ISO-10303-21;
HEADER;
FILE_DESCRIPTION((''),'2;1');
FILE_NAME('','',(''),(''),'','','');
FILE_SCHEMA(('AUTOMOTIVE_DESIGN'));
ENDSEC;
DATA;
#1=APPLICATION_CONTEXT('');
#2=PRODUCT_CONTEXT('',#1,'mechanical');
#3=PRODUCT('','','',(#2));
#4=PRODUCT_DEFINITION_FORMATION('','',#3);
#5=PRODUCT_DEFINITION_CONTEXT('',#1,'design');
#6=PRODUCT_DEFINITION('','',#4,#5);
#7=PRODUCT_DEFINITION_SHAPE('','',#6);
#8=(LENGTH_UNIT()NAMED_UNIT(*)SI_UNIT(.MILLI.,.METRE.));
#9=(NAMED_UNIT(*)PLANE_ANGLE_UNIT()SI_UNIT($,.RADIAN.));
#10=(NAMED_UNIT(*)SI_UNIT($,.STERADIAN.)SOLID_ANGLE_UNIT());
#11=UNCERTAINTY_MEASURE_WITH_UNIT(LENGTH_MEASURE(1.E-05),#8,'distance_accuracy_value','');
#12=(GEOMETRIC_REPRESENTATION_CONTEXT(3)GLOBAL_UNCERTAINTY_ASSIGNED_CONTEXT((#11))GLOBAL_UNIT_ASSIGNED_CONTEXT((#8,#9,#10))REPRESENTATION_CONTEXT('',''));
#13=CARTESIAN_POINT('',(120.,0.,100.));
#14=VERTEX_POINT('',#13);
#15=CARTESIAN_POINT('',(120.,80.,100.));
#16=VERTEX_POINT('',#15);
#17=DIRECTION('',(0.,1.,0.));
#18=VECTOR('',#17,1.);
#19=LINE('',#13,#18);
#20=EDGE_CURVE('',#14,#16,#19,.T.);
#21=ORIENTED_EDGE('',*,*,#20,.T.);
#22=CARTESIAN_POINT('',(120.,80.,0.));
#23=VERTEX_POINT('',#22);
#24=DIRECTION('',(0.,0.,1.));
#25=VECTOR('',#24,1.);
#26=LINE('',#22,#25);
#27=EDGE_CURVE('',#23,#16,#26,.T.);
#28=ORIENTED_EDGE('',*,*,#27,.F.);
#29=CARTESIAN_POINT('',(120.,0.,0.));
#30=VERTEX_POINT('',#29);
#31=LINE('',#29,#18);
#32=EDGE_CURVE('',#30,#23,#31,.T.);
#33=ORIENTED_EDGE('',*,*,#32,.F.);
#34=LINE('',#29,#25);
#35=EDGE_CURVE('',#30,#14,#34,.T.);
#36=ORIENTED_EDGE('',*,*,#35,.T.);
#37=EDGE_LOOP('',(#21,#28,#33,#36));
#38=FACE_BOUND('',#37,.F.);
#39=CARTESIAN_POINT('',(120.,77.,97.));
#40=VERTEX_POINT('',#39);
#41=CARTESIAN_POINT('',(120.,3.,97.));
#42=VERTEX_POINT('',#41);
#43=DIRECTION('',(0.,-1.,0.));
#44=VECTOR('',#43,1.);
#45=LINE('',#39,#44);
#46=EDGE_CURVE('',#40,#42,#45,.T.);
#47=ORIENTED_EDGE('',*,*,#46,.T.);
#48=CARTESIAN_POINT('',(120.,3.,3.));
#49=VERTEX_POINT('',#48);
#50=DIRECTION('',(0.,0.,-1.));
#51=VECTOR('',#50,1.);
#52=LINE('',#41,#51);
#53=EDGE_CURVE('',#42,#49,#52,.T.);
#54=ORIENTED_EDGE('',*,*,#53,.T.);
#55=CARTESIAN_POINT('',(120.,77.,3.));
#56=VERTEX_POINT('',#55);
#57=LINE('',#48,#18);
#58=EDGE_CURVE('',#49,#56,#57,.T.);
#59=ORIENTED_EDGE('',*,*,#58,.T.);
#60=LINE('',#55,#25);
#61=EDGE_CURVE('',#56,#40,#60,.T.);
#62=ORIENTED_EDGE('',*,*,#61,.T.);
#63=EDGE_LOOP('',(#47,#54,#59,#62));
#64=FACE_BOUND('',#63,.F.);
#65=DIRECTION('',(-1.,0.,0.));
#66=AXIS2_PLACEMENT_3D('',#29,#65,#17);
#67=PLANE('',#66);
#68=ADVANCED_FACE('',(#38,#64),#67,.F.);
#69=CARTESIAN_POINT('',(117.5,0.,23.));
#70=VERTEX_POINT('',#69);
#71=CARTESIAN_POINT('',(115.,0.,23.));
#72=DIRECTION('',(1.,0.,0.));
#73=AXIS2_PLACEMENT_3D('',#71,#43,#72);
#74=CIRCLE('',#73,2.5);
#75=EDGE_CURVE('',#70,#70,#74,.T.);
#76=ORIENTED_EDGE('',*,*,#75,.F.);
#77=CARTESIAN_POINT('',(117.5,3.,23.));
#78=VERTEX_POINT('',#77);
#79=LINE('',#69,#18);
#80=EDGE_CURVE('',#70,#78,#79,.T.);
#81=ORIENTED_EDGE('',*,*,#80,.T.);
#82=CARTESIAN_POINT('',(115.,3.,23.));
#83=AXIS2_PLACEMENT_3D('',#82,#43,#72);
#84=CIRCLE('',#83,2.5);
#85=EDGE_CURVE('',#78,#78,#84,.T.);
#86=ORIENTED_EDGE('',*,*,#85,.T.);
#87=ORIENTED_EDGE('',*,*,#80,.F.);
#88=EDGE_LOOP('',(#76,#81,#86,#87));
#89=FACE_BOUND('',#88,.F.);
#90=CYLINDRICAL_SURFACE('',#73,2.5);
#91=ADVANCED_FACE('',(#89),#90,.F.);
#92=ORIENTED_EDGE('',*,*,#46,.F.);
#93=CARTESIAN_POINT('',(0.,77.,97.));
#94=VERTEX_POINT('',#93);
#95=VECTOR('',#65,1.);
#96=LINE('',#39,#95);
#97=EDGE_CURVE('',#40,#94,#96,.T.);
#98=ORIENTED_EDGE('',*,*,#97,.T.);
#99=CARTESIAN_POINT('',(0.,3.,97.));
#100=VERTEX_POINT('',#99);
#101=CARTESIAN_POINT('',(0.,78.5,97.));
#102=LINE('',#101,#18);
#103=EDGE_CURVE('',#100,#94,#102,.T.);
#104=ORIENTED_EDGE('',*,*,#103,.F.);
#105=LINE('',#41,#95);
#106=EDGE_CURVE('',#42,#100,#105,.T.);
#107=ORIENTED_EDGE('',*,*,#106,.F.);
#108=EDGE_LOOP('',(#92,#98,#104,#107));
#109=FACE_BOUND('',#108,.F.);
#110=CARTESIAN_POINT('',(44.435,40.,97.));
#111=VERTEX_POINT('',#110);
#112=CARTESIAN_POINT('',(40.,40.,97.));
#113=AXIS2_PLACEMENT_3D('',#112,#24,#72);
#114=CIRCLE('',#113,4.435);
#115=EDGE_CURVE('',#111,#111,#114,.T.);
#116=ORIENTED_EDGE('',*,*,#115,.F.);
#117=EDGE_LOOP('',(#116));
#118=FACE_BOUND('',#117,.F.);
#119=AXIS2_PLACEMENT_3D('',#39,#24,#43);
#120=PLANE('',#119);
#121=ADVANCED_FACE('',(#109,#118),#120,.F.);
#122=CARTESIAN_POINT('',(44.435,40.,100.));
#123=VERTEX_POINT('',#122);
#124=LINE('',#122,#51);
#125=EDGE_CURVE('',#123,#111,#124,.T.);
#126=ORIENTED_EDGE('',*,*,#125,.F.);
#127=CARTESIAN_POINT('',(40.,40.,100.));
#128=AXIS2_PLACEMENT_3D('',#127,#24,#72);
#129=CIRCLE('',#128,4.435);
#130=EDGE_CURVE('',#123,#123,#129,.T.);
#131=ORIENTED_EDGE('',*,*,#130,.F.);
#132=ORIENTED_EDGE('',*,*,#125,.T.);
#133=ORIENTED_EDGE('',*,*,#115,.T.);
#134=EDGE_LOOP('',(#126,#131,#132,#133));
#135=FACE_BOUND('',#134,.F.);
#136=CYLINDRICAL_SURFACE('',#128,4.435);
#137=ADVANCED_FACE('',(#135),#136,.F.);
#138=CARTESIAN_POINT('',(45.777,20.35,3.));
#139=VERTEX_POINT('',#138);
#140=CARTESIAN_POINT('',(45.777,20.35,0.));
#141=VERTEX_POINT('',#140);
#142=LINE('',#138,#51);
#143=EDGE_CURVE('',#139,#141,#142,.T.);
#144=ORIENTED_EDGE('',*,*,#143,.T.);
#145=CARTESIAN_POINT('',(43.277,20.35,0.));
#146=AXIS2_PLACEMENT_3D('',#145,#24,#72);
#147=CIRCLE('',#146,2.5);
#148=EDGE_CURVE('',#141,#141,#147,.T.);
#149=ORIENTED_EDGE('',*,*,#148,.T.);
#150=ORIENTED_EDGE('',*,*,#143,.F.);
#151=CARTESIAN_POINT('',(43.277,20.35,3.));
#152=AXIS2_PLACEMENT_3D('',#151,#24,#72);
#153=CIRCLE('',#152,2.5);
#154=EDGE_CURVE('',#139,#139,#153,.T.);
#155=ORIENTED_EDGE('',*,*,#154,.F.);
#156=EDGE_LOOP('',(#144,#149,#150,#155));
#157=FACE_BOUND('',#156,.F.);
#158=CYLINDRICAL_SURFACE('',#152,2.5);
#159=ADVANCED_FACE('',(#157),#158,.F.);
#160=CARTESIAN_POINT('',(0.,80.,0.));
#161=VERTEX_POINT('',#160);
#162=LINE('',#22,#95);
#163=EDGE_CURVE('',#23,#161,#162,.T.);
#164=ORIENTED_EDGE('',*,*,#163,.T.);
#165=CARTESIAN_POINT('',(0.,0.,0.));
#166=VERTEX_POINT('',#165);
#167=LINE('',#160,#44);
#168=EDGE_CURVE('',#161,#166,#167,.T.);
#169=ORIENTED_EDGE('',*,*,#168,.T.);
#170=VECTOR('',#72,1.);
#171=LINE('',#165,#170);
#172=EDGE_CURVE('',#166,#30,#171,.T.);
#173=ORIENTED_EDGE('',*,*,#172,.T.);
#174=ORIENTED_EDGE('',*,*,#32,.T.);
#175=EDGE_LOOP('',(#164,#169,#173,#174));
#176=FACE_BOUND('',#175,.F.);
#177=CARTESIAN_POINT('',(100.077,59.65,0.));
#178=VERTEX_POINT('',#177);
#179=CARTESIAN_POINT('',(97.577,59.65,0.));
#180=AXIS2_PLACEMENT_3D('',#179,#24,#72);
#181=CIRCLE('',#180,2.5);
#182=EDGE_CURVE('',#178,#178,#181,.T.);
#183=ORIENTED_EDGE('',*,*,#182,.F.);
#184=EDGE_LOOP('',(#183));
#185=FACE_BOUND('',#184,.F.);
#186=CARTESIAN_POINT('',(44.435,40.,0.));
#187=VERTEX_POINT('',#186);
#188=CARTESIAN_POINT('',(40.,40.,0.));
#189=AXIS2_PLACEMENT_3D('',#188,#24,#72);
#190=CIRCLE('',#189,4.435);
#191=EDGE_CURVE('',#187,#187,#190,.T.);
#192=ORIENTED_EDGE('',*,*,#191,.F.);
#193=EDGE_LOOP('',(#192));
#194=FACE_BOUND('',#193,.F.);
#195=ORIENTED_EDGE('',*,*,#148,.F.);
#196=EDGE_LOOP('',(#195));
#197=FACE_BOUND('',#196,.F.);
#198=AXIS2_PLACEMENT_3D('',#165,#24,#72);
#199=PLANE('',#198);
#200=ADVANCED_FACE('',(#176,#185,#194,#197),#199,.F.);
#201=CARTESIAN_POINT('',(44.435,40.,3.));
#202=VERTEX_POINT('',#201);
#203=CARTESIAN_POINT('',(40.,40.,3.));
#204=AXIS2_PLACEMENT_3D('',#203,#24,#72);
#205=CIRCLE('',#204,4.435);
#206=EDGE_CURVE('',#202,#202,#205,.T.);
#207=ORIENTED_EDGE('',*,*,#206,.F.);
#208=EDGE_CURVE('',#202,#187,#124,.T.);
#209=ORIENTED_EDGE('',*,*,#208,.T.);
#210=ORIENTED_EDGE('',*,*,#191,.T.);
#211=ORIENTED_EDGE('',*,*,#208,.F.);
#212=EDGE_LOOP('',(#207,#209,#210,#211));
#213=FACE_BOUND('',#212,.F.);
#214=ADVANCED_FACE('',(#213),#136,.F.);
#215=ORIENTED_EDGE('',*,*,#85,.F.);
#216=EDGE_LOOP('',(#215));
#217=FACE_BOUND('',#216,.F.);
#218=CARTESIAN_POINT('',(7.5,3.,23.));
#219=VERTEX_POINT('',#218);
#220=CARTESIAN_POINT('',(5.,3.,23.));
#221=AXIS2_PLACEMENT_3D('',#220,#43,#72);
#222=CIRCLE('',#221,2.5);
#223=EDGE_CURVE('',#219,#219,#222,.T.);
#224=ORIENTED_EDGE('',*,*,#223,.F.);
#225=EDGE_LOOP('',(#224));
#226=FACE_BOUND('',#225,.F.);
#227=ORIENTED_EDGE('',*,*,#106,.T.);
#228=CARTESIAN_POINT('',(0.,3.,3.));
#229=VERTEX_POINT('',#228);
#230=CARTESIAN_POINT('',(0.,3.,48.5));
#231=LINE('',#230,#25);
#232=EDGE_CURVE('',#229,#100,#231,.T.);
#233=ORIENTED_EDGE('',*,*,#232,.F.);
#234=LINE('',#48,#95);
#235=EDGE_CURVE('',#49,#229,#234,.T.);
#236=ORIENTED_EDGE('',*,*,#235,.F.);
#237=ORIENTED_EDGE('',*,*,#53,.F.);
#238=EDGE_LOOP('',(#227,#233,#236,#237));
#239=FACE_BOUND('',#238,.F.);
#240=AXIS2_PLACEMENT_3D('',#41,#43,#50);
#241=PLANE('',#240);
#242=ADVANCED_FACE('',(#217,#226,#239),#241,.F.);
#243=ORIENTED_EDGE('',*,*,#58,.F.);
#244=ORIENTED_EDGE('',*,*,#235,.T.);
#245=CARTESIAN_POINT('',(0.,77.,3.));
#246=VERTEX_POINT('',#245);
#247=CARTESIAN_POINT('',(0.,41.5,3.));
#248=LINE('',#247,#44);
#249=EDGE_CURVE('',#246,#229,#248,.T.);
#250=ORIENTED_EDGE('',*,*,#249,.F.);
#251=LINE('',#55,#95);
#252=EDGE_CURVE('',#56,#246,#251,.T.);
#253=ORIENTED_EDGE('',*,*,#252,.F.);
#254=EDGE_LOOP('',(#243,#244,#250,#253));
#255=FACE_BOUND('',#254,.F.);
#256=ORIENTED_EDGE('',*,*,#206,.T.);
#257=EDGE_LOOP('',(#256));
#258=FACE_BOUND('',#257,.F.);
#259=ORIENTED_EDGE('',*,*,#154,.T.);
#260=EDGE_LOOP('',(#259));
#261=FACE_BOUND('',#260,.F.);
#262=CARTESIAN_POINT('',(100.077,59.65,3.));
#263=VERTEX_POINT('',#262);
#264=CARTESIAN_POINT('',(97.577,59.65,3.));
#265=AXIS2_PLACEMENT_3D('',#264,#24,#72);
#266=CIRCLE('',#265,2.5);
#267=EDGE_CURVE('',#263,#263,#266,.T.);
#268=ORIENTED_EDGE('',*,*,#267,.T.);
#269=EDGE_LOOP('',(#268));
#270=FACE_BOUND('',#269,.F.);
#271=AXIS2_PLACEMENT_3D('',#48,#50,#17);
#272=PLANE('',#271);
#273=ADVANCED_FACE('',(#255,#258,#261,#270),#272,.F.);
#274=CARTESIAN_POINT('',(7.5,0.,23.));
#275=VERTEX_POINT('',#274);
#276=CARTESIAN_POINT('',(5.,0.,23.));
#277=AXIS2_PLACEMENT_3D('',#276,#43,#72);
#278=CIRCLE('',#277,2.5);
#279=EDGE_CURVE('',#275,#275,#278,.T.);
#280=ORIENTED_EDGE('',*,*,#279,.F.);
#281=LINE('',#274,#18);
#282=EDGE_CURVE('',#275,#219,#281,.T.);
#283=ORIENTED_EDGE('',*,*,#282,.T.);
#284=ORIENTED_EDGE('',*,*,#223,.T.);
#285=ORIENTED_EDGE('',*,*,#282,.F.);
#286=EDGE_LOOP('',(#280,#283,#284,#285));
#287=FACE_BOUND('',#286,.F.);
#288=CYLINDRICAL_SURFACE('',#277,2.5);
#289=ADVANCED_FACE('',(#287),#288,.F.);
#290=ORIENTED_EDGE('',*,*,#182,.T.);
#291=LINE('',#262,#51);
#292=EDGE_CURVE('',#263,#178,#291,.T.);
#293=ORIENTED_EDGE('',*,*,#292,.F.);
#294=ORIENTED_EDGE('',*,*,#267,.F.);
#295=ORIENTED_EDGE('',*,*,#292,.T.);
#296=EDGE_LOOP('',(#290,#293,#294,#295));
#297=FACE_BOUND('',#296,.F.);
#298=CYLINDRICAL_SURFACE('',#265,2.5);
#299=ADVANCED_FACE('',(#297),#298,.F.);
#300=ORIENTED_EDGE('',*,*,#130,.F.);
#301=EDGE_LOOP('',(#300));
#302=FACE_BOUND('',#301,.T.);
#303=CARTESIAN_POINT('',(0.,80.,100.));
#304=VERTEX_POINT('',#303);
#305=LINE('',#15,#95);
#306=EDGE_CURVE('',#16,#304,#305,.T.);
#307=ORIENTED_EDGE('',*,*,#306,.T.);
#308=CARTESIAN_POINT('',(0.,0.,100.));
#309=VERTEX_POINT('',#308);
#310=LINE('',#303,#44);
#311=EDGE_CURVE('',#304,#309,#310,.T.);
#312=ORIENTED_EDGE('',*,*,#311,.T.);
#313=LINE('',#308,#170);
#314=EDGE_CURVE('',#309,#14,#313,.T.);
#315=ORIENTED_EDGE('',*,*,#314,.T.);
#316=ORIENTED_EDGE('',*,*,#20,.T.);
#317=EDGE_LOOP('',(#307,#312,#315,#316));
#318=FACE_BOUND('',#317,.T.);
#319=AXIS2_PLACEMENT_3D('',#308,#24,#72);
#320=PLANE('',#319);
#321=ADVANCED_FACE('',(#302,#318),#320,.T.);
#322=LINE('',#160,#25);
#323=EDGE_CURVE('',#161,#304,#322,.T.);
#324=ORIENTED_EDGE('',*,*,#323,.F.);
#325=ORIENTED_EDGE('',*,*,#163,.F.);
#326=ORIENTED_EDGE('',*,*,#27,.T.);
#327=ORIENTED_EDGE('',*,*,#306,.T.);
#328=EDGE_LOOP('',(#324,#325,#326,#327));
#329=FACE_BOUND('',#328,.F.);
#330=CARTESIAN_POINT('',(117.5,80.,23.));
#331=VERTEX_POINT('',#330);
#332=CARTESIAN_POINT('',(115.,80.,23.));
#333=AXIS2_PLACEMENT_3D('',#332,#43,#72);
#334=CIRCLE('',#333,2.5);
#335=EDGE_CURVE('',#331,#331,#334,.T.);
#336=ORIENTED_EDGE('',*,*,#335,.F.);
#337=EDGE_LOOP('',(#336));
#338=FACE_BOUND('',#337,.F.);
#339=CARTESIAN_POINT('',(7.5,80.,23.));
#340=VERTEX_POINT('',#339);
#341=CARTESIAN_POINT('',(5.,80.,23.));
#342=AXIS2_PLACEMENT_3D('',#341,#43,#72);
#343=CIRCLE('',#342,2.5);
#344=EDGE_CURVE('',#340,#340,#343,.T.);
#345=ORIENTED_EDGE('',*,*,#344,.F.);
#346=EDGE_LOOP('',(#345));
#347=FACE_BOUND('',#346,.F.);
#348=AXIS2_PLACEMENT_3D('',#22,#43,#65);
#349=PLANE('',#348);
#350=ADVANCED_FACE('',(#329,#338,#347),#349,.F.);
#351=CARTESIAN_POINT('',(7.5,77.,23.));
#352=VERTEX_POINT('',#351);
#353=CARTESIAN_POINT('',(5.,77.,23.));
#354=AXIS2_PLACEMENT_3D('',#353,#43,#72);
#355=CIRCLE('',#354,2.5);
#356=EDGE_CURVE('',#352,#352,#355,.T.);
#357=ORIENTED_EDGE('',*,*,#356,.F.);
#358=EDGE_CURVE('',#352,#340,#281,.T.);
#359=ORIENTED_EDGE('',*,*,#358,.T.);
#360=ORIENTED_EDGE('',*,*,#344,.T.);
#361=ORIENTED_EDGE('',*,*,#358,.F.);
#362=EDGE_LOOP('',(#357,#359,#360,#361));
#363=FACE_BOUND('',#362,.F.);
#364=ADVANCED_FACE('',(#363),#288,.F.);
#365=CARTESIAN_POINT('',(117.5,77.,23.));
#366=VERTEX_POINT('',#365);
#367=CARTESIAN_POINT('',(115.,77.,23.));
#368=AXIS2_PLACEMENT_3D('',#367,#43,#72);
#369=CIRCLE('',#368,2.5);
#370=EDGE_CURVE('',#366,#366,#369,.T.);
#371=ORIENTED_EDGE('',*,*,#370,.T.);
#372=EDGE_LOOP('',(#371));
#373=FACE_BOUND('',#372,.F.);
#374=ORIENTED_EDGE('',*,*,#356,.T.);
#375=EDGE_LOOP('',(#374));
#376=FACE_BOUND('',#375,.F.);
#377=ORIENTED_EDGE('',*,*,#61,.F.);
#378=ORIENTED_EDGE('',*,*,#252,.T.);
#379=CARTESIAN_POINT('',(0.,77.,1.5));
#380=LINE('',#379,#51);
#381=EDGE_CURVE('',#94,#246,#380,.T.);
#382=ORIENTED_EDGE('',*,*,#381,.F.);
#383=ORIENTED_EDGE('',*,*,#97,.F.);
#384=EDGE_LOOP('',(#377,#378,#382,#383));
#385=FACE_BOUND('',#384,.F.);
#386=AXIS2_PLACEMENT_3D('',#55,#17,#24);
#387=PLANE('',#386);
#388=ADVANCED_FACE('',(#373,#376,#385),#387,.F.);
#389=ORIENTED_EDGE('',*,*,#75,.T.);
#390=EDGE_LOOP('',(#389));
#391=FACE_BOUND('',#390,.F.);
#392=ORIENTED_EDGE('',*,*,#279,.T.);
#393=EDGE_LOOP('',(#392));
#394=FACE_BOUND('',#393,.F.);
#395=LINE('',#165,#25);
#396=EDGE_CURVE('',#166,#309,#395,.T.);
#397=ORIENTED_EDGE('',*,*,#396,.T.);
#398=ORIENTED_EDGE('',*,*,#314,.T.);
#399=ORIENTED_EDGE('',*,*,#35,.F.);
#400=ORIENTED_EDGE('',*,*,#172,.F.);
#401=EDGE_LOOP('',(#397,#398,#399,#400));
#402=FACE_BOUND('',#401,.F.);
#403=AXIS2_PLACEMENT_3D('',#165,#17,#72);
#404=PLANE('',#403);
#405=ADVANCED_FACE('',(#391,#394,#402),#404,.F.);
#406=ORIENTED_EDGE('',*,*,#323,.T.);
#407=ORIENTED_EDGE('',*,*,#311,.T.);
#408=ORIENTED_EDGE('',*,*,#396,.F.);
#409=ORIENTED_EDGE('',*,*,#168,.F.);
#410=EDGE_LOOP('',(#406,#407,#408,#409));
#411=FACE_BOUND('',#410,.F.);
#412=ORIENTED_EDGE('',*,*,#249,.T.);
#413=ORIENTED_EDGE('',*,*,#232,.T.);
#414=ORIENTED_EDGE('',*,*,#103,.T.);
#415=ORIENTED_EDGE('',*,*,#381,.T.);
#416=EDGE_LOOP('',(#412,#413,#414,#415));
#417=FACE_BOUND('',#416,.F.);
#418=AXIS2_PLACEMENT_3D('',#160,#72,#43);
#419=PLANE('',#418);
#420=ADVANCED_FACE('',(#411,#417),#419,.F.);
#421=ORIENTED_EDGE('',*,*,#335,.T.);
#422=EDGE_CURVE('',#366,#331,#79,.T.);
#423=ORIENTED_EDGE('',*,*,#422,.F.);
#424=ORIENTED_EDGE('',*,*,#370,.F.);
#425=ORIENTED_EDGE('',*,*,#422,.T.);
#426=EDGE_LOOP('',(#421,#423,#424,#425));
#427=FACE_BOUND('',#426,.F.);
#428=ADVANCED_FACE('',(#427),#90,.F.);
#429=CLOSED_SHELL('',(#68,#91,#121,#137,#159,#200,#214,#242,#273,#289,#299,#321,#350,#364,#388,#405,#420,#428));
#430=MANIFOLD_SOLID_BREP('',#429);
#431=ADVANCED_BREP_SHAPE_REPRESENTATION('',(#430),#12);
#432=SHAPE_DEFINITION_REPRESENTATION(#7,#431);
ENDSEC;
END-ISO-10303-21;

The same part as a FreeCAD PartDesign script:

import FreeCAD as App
import Part
import Sketcher

V = App.Vector
Q = App.Units.Quantity


def add_polygon(sketch, points):
    """Adds a closed chain of lines whose ends are joined by coincident constraints."""
    first, n = sketch.GeometryCount, len(points)
    for a, b in zip(points, points[1:] + points[:1]):
        sketch.addGeometry(Part.LineSegment(App.Vector(*a, 0), App.Vector(*b, 0)), False)
    for i in range(n):
        sketch.addConstraint(Sketcher.Constraint("Coincident", first + i, 2, first + (i + 1) % n, 1))

doc = App.newDocument("Part")
body = doc.addObject("PartDesign::Body", "Body")

sketch1 = body.newObject("Sketcher::SketchObject", "Sketch")
sketch1.AttachmentSupport = (doc.getObject("XY_Plane"), [""])
sketch1.MapMode = "FlatFace"
add_polygon(sketch1, [(0, 80), (0, 0), (120, 0), (120, 80)])
sketch1.addConstraint([
    Sketcher.Constraint("Vertical", 0),
    Sketcher.Constraint("Horizontal", 1),
    Sketcher.Constraint("Vertical", 2),
    Sketcher.Constraint("Horizontal", 3),
    Sketcher.Constraint("Coincident", 0, 2, -1, 1),
    Sketcher.Constraint("DistanceX", 1, 1, 1, 2, Q("120 mm")),
    Sketcher.Constraint("DistanceY", 0, 2, 0, 1, Q("80 mm")),
])
pad1 = body.newObject("PartDesign::Pad", "Pad")
pad1.Profile = sketch1
pad1.Length = 100

sketch2 = body.newObject("Sketcher::SketchObject", "Sketch001")
sketch2.AttachmentSupport = (doc.getObject("YZ_Plane"), [""])
sketch2.MapMode = "FlatFace"
sketch2.AttachmentOffset = App.Placement(V(0, 0, 120), App.Rotation())
add_polygon(sketch2, [(77, 97), (3, 97), (3, 3), (77, 3)])
sketch2.addConstraint([
    Sketcher.Constraint("Horizontal", 0),
    Sketcher.Constraint("Vertical", 1),
    Sketcher.Constraint("Horizontal", 2),
    Sketcher.Constraint("Vertical", 3),
    Sketcher.Constraint("DistanceX", -1, 1, 0, 2, Q("3 mm")),
    Sketcher.Constraint("DistanceY", -1, 1, 1, 2, Q("3 mm")),
    Sketcher.Constraint("DistanceX", 0, 2, 0, 1, Q("74 mm")),
    Sketcher.Constraint("DistanceY", 1, 2, 1, 1, Q("94 mm")),
])
pocket1 = body.newObject("PartDesign::Pocket", "Pocket")
pocket1.Profile = sketch2
pocket1.Type = "UpToFirst"

sketch3 = body.newObject("Sketcher::SketchObject", "Sketch002")
sketch3.AttachmentSupport = (doc.getObject("XZ_Plane"), [""])
sketch3.MapMode = "FlatFace"
sketch3.addGeometry([
    Part.Circle(V(5, 23, 0), V(0, 0, 1), 2.5),
    Part.Circle(V(115, 23, 0), V(0, 0, 1), 2.5),
], False)
sketch3.addConstraint([
    Sketcher.Constraint("Equal", 0, 1),
    Sketcher.Constraint("Horizontal", 0, 3, 1, 3),
    Sketcher.Constraint("Diameter", 0, Q("5 mm")),
    Sketcher.Constraint("DistanceX", -1, 1, 0, 3, Q("5 mm")),
    Sketcher.Constraint("DistanceY", -1, 1, 0, 3, Q("23 mm")),
    Sketcher.Constraint("DistanceX", -1, 1, 1, 3, Q("115 mm")),
])
pocket2 = body.newObject("PartDesign::Pocket", "Pocket001")
pocket2.Profile = sketch3
pocket2.Length = 100

sketch4 = body.newObject("Sketcher::SketchObject", "Sketch003")
sketch4.AttachmentSupport = (doc.getObject("XY_Plane"), [""])
sketch4.MapMode = "FlatFace"
sketch4.AttachmentOffset = App.Placement(V(0, 0, 100), App.Rotation())
sketch4.addGeometry(Part.Circle(V(40, 40, 0), V(0, 0, 1), 4.435), False)
sketch4.addConstraint([
    Sketcher.Constraint("Diameter", 0, Q("8.87 mm")),
    Sketcher.Constraint("DistanceX", -1, 1, 0, 3, Q("40 mm")),
    Sketcher.Constraint("DistanceY", -1, 1, 0, 3, Q("40 mm")),
])
pocket3 = body.newObject("PartDesign::Pocket", "Pocket002")
pocket3.Profile = sketch4
pocket3.Type = "ThroughAll"

sketch5 = body.newObject("Sketcher::SketchObject", "Sketch004")
sketch5.AttachmentSupport = (doc.getObject("XY_Plane"), [""])
sketch5.MapMode = "FlatFace"
sketch5.AttachmentOffset = App.Placement(V(0, 0, 3), App.Rotation())
sketch5.addGeometry([
    Part.Circle(V(97.577, 59.65, 0), V(0, 0, 1), 2.5),
    Part.Circle(V(43.277, 20.35, 0), V(0, 0, 1), 2.5),
], False)
sketch5.addConstraint([
    Sketcher.Constraint("Equal", 0, 1),
    Sketcher.Constraint("Diameter", 0, Q("5 mm")),
    Sketcher.Constraint("DistanceX", 1, 3, 0, 3, Q("54.3 mm")),
    Sketcher.Constraint("DistanceY", 1, 3, 0, 3, Q("39.3 mm")),
    Sketcher.Constraint("DistanceY", -1, 1, 0, 3, Q("59.65 mm")),
    Sketcher.Constraint("DistanceX", -1, 1, 0, 3, Q("97.577 mm")),
])
pocket4 = body.newObject("PartDesign::Pocket", "Pocket003")
pocket4.Profile = sketch5
pocket4.Length = 100

doc.recompute()
